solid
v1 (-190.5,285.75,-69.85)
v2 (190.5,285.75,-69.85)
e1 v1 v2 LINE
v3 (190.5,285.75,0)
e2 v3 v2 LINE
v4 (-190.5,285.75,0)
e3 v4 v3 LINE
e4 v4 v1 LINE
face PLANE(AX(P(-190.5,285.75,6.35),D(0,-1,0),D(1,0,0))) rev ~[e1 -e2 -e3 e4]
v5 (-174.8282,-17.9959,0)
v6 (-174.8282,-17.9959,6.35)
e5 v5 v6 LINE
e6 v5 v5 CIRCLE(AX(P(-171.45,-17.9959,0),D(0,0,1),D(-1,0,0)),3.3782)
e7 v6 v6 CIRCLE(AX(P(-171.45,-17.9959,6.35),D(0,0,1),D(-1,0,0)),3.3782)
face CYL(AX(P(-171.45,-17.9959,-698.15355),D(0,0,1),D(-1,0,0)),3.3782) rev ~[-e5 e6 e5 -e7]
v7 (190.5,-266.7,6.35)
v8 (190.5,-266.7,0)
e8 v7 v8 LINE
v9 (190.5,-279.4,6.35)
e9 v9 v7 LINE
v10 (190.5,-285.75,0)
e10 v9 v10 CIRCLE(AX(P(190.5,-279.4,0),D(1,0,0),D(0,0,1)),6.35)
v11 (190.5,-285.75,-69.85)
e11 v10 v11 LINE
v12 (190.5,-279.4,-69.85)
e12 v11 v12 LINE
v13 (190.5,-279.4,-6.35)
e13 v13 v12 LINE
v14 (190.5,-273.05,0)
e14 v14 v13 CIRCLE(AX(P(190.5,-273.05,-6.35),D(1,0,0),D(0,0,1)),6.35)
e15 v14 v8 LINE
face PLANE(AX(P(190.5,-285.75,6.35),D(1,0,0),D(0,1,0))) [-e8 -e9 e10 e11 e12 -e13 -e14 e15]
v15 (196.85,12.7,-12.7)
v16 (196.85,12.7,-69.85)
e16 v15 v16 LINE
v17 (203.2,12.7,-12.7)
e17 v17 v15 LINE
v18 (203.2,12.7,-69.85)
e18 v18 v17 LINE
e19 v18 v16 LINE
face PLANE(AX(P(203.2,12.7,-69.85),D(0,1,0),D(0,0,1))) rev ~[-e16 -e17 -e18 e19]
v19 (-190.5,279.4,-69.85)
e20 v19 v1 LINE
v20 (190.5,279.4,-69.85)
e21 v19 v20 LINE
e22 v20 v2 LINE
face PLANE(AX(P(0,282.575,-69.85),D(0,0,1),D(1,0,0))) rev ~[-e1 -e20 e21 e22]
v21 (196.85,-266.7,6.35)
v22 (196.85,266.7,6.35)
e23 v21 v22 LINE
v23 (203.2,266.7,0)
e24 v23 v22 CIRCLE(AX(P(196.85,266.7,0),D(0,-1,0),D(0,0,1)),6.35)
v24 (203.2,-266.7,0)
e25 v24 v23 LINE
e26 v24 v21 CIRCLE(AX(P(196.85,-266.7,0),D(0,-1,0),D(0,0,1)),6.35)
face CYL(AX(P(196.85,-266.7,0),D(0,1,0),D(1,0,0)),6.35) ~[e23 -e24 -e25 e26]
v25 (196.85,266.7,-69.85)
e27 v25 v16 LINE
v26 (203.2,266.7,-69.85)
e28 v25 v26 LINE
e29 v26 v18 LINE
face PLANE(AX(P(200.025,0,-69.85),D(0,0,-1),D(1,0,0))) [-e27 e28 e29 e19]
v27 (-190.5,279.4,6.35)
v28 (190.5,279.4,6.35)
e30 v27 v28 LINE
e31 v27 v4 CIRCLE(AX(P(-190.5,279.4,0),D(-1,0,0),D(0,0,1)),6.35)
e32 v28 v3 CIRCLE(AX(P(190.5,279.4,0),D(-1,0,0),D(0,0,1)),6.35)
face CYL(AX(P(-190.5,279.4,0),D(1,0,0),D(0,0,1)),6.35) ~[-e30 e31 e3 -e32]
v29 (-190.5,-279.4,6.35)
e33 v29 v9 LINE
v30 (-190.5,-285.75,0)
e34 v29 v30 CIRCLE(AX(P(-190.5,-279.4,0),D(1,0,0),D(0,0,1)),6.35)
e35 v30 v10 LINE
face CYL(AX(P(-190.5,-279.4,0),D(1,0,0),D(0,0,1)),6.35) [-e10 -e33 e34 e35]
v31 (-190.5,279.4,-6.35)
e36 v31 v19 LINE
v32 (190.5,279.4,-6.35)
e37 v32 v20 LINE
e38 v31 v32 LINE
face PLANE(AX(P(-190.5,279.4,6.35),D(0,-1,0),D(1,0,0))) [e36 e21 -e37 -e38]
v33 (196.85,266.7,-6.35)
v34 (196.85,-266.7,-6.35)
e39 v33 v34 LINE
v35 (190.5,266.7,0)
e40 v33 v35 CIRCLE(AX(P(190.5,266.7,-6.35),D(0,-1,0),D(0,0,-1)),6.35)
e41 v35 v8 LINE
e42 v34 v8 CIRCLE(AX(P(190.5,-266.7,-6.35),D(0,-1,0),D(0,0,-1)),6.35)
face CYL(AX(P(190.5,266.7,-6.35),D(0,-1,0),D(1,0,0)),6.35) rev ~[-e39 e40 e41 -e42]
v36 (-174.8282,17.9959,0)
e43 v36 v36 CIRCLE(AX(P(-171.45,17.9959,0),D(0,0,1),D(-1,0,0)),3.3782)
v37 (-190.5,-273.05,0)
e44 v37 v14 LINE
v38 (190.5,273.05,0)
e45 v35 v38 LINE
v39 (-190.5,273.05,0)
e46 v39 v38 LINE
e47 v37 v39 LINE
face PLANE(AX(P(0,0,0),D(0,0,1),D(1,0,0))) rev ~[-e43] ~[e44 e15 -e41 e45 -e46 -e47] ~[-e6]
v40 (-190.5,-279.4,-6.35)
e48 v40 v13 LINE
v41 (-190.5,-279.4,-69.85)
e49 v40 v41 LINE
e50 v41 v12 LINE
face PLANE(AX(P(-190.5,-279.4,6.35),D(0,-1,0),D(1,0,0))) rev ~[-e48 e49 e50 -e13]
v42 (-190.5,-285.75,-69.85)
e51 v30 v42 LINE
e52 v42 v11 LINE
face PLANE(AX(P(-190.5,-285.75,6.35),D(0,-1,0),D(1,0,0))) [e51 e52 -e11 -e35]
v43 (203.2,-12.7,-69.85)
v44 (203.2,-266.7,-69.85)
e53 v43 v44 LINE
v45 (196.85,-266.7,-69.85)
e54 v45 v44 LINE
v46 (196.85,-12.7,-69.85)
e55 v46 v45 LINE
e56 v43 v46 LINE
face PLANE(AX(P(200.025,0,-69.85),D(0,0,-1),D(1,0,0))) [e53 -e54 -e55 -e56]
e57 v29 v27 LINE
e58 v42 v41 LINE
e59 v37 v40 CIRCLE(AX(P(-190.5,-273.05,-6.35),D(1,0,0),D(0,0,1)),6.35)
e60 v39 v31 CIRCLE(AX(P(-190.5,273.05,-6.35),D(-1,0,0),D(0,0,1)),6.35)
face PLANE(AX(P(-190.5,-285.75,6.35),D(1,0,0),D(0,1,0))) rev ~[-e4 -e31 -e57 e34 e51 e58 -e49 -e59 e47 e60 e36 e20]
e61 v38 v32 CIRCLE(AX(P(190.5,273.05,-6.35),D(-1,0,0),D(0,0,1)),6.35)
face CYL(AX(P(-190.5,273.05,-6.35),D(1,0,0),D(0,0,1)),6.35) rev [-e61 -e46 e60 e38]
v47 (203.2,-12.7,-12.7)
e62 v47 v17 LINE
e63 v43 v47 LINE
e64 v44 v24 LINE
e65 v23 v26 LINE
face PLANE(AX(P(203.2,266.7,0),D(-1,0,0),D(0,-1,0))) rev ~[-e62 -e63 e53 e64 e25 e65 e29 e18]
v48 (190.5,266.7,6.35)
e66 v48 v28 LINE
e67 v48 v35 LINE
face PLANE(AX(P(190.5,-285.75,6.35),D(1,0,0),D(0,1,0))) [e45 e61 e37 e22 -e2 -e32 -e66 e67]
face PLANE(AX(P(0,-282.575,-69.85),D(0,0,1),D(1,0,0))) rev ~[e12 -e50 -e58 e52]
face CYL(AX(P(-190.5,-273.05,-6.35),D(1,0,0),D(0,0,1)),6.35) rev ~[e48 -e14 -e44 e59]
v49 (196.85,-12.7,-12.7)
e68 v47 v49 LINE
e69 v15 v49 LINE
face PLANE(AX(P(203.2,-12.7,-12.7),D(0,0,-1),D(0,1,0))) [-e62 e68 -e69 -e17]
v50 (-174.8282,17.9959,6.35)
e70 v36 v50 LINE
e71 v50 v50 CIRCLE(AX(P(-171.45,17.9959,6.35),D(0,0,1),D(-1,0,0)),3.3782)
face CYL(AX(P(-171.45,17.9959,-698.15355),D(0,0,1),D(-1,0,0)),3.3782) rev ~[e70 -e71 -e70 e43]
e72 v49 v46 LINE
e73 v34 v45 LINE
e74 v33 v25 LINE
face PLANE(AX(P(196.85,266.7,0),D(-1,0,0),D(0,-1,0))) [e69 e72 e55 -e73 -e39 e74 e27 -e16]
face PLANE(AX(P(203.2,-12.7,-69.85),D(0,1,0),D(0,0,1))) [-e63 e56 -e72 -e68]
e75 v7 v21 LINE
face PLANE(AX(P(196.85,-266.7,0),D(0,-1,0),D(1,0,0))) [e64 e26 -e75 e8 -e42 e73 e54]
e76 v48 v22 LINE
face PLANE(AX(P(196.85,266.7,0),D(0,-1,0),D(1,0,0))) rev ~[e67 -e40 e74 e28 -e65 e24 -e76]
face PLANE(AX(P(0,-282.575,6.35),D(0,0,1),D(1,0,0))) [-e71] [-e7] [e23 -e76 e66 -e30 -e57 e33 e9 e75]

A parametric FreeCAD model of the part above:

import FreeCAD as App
import Part
import Sketcher
from FreeCAD import Vector
Q = App.Units.Quantity


def edges_at(feature, points):
    """Names of the edges that pass closest to the given points."""
    edges = feature.Shape.Edges
    near = lambda p: min(range(len(edges)), key=lambda i: edges[i].distToShape(Part.Vertex(*p))[0])
    return sorted({f"Edge{near(p) + 1}" for p in points})


def add_polygon(sketch, points):
    """Adds a closed chain of lines whose ends are joined by coincident constraints."""
    first, n = sketch.GeometryCount, len(points)
    for a, b in zip(points, points[1:] + points[:1]):
        sketch.addGeometry(Part.LineSegment(App.Vector(*a, 0), App.Vector(*b, 0)), False)
    for i in range(n):
        sketch.addConstraint(Sketcher.Constraint("Coincident", first + i, 2, first + (i + 1) % n, 1))

doc = App.newDocument("Part")
params = doc.addObject("Spreadsheet::Sheet", "Params")
for row, (alias, value) in enumerate([
    ("sketch1_width", "15 in"),
    ("sketch1_height", "22 in"),
    ("pad1_length", "0.25 in"),
    ("sketch2_width", "15 in"),
    ("sketch2_height", "0.25 in"),
    ("pad2_length", "3 in"),
    ("sketch3_height", "21 in"),
    ("sketch3_width", "0.5 in"),
    ("pad3_length", "0.25 in"),
    ("sketch4_height", "21 in"),
    ("sketch4_width", "0.25 in"),
    ("pad4_length", "2.75 in"),
    ("sketch5_width", "1 in"),
    ("sketch5_height", "2.25 in"),
    ("fillet_radius", "0.25 in"),
    ("sketch6_diameter", "0.266 in"),
    ("hole_diameter", "0.266 in"),
], start=1):
    params.set(f"A{row}", alias)
    params.set(f"B{row}", "=" + value)
    params.setAlias(f"B{row}", alias)

body = doc.addObject("PartDesign::Body", "Body")

sketch1 = body.newObject("Sketcher::SketchObject", "Sketch")
sketch1.AttachmentSupport = (doc.getObject("XY_Plane"), [""])
sketch1.MapMode = "FlatFace"
add_polygon(sketch1, [(-190.5, 279.4), (-190.5, -279.4), (190.5, -279.4), (190.5, 279.4)])
sketch1.addConstraint(Sketcher.Constraint("Vertical", 0))
sketch1.addConstraint(Sketcher.Constraint("Horizontal", 1))
sketch1.addConstraint(Sketcher.Constraint("Vertical", 2))
sketch1.addConstraint(Sketcher.Constraint("Horizontal", 3))
sketch1.addConstraint(Sketcher.Constraint("Symmetric", 0, 2, 2, 2, -1, 1))
sketch1.addConstraint(Sketcher.Constraint("DistanceX", 1, 1, 1, 2, Q("15 in")))
sketch1.addConstraint(Sketcher.Constraint("DistanceY", 0, 2, 0, 1, Q("22 in")))
sketch1.setExpression("Constraints[9]", "Params.sketch1_width")
sketch1.setExpression("Constraints[10]", "Params.sketch1_height")
pad1 = body.newObject("PartDesign::Pad", "Pad")
pad1.Profile = sketch1
pad1.setExpression("Length", "Params.pad1_length")

sketch2 = body.newObject("Sketcher::SketchObject", "Sketch001")
sketch2.AttachmentSupport = (doc.getObject("XY_Plane"), [""])
sketch2.MapMode = "FlatFace"
sketch2.AttachmentOffset = App.Placement(Vector(0, 0, 0.25 * 25.4), App.Rotation())
add_polygon(sketch2, [(-190.5, -279.4), (-190.5, -285.75), (190.5, -285.75), (190.5, -279.4)])
add_polygon(sketch2, [(-190.5, 285.75), (-190.5, 279.4), (190.5, 279.4), (190.5, 285.75)])
sketch2.addConstraint(Sketcher.Constraint("Vertical", 0))
sketch2.addConstraint(Sketcher.Constraint("Horizontal", 1))
sketch2.addConstraint(Sketcher.Constraint("Vertical", 2))
sketch2.addConstraint(Sketcher.Constraint("Horizontal", 3))
sketch2.addConstraint(Sketcher.Constraint("Vertical", 4))
sketch2.addConstraint(Sketcher.Constraint("Horizontal", 5))
sketch2.addConstraint(Sketcher.Constraint("Vertical", 6))
sketch2.addConstraint(Sketcher.Constraint("Horizontal", 7))
sketch2.addConstraint(Sketcher.Constraint("Symmetric", 2, 2, 4, 2, -1, 1))
sketch2.addConstraint(Sketcher.Constraint("Symmetric", 0, 2, 6, 2, -1, 1))
sketch2.addConstraint(Sketcher.Constraint("Vertical", 3, 2, 4, 2))
sketch2.addConstraint(Sketcher.Constraint("DistanceX", 1, 1, 1, 2, Q("15 in")))
sketch2.addConstraint(Sketcher.Constraint("DistanceY", 2, 2, -1, 1, Q("11 in")))
sketch2.addConstraint(Sketcher.Constraint("DistanceY", 0, 2, 0, 1, Q("0.25 in")))
sketch2.setExpression("Constraints[19]", "Params.sketch2_width")
sketch2.setExpression("Constraints[21]", "Params.sketch2_height")
pad2 = body.newObject("PartDesign::Pad", "Pad001")
pad2.Profile = sketch2
pad2.setExpression("Length", "Params.pad2_length")
pad2.Reversed = True

sketch3 = body.newObject("Sketcher::SketchObject", "Sketch002")
sketch3.AttachmentSupport = (doc.getObject("XY_Plane"), [""])
sketch3.MapMode = "FlatFace"
sketch3.AttachmentOffset = App.Placement(Vector(0, 0, 0.25 * 25.4), App.Rotation())
add_polygon(sketch3, [(190.5, 266.7), (190.5, -266.7), (203.2, -266.7), (203.2, 266.7)])
sketch3.addConstraint(Sketcher.Constraint("Vertical", 0))
sketch3.addConstraint(Sketcher.Constraint("Horizontal", 1))
sketch3.addConstraint(Sketcher.Constraint("Vertical", 2))
sketch3.addConstraint(Sketcher.Constraint("Horizontal", 3))
sketch3.addConstraint(Sketcher.Constraint("DistanceY", 0, 2, 0, 1, Q("21 in")))
sketch3.addConstraint(Sketcher.Constraint("DistanceX", 1, 1, 1, 2, Q("0.5 in")))
sketch3.addConstraint(Sketcher.Constraint("DistanceX", -1, 1, 1, 2, Q("8 in")))
sketch3.addConstraint(Sketcher.Constraint("DistanceY", 0, 2, -1, 1, Q("10.5 in")))
sketch3.setExpression("Constraints[8]", "Params.sketch3_height")
sketch3.setExpression("Constraints[9]", "Params.sketch3_width")
pad3 = body.newObject("PartDesign::Pad", "Pad002")
pad3.Profile = sketch3
pad3.setExpression("Length", "Params.pad3_length")
pad3.Reversed = True

sketch4 = body.newObject("Sketcher::SketchObject", "Sketch003")
sketch4.AttachmentSupport = (doc.getObject("XY_Plane"), [""])
sketch4.MapMode = "FlatFace"
add_polygon(sketch4, [(196.85, -266.7), (196.85, 266.7), (203.2, 266.7), (203.2, -266.7)])
sketch4.addConstraint(Sketcher.Constraint("Vertical", 0))
sketch4.addConstraint(Sketcher.Constraint("Horizontal", 1))
sketch4.addConstraint(Sketcher.Constraint("Vertical", 2))
sketch4.addConstraint(Sketcher.Constraint("Horizontal", 3))
sketch4.addConstraint(Sketcher.Constraint("DistanceY", 0, 1, 0, 2, Q("21 in")))
sketch4.addConstraint(Sketcher.Constraint("DistanceX", -1, 1, 1, 2, Q("8 in")))
sketch4.addConstraint(Sketcher.Constraint("DistanceX", 1, 1, 1, 2, Q("0.25 in")))
sketch4.addConstraint(Sketcher.Constraint("DistanceY", -1, 1, 0, 2, Q("10.5 in")))
sketch4.setExpression("Constraints[8]", "Params.sketch4_height")
sketch4.setExpression("Constraints[10]", "Params.sketch4_width")
pad4 = body.newObject("PartDesign::Pad", "Pad003")
pad4.Profile = sketch4
pad4.setExpression("Length", "Params.pad4_length")
pad4.Reversed = True

sketch5 = body.newObject("Sketcher::SketchObject", "Sketch004")
sketch5.AttachmentSupport = (doc.getObject("YZ_Plane"), [""])
sketch5.MapMode = "FlatFace"
sketch5.AttachmentOffset = App.Placement(Vector(0, 0, 8 * 25.4), App.Rotation())
add_polygon(sketch5, [(-12.7, -12.7), (-12.7, -69.85), (12.7, -69.85), (12.7, -12.7)])
sketch5.addConstraint(Sketcher.Constraint("Vertical", 0))
sketch5.addConstraint(Sketcher.Constraint("Horizontal", 1))
sketch5.addConstraint(Sketcher.Constraint("Vertical", 2))
sketch5.addConstraint(Sketcher.Constraint("Horizontal", 3))
sketch5.addConstraint(Sketcher.Constraint("DistanceX", 1, 1, 1, 2, Q("1 in")))
sketch5.addConstraint(Sketcher.Constraint("DistanceY", 0, 2, 0, 1, Q("2.25 in")))
sketch5.addConstraint(Sketcher.Constraint("DistanceX", 0, 2, -1, 1, Q("0.5 in")))
sketch5.addConstraint(Sketcher.Constraint("DistanceY", 2, 2, -1, 1, Q("0.5 in")))
sketch5.setExpression("Constraints[8]", "Params.sketch5_width")
sketch5.setExpression("Constraints[9]", "Params.sketch5_height")
pocket1 = body.newObject("PartDesign::Pocket", "Pocket")
pocket1.Profile = sketch5
pocket1.Type = "ThroughAll"
doc.recompute()

fillet = body.newObject("PartDesign::Fillet", "Fillet")
fillet.Base = (pocket1, edges_at(pocket1, [
    (0, 285.75, 6.35),
    (0, -285.75, 6.35),
    (203.2, 0, 6.35),
    (0, -279.4, 0),
    (196.85, 0, 0),
    (0, 279.4, 0),
]))
fillet.setExpression("Radius", "Params.fillet_radius")

sketch6 = body.newObject("Sketcher::SketchObject", "Sketch005")
sketch6.AttachmentSupport = (doc.getObject("XY_Plane"), [""])
sketch6.MapMode = "FlatFace"
sketch6.addGeometry(Part.Circle(Vector(-171.45, -17.9959, 0), Vector(0, 0, 1), 3.3782), False)
sketch6.addGeometry(Part.Circle(Vector(-171.45, 17.9959, 0), Vector(0, 0, 1), 3.3782), False)
sketch6.addConstraint(Sketcher.Constraint("Equal", 0, 1))
sketch6.addConstraint(Sketcher.Constraint("Symmetric", 0, 3, 1, 3, -1))
sketch6.addConstraint(Sketcher.Constraint("Diameter", 0, Q("0.266 in")))
sketch6.addConstraint(Sketcher.Constraint("DistanceX", 0, 3, -1, 1, Q("6.75 in")))
sketch6.addConstraint(Sketcher.Constraint("DistanceY", 0, 3, 1, 3, Q("1.417 in")))
sketch6.setExpression("Constraints[2]", "Params.sketch6_diameter")
doc.recompute()
hole = body.newObject("PartDesign::Hole", "Hole")
hole.Profile = sketch6
hole.ThreadType = "None"
hole.setExpression("Diameter", "Params.hole_diameter")
hole.DepthType = "ThroughAll"
hole.Reversed = True

doc.recompute()
